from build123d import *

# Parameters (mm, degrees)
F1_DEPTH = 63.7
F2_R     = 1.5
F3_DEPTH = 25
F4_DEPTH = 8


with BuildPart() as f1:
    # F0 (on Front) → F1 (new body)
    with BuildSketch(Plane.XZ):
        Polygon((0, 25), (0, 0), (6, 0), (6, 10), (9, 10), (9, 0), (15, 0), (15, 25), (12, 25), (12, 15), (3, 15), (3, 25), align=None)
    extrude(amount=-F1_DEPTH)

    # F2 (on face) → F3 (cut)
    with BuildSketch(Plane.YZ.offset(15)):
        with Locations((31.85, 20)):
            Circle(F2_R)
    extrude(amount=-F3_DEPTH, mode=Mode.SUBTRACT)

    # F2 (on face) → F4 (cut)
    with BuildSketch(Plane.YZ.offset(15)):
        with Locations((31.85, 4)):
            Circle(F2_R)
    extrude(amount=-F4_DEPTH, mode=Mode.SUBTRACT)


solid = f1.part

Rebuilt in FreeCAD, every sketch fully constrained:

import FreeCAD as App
import Part
import Sketcher

V = App.Vector
Q = App.Units.Quantity


def add_polygon(sketch, points):
    """Adds a closed chain of lines whose ends are joined by coincident constraints."""
    first, n = sketch.GeometryCount, len(points)
    for a, b in zip(points, points[1:] + points[:1]):
        sketch.addGeometry(Part.LineSegment(App.Vector(*a, 0), App.Vector(*b, 0)), False)
    for i in range(n):
        sketch.addConstraint(Sketcher.Constraint("Coincident", first + i, 2, first + (i + 1) % n, 1))

doc = App.newDocument("Part")
params = doc.addObject("Spreadsheet::Sheet", "Params")
for row, (alias, value) in enumerate([
    ("sketch1_width", "6 mm"),
    ("sketch1_width2", "3 mm"),
    ("sketch1_height", "25 mm"),
    ("sketch1_height2", "10 mm"),
    ("pad1_length", "63.7 mm"),
    ("sketch2_diameter", "3 mm"),
    ("pocket1_length", "25 mm"),
    ("sketch3_diameter", "3 mm"),
    ("pocket2_length", "8 mm"),
], start=1):
    params.set(f"A{row}", alias)
    params.set(f"B{row}", "=" + value)
    params.setAlias(f"B{row}", alias)

body = doc.addObject("PartDesign::Body", "Body")

sketch1 = doc.addObject("Sketcher::SketchObject", "Sketch")
body.addObject(sketch1)
sketch1.AttachmentSupport = (doc.XZ_Plane, [""])
sketch1.MapMode = "FlatFace"
add_polygon(sketch1, [(0, 25), (0, 0), (6, 0), (6, 10), (9, 10), (9, 0), (15, 0), (15, 25), (12, 25), (12, 15), (3, 15), (3, 25)])
sketch1.addConstraint([
    Sketcher.Constraint("Vertical", 0),
    Sketcher.Constraint("Horizontal", 1),
    Sketcher.Constraint("Vertical", 2),
    Sketcher.Constraint("Horizontal", 3),
    Sketcher.Constraint("Vertical", 4),
    Sketcher.Constraint("Horizontal", 5),
    Sketcher.Constraint("Vertical", 6),
    Sketcher.Constraint("Horizontal", 7),
    Sketcher.Constraint("Vertical", 8),
    Sketcher.Constraint("Horizontal", 9),
    Sketcher.Constraint("Vertical", 10),
    Sketcher.Constraint("Horizontal", 11),
    Sketcher.Constraint("Coincident", 0, 2, -1, 1),
    Sketcher.Constraint("PointOnObject", 4, 2, -1),
    Sketcher.Constraint("Horizontal", 7, 2, 10, 2),
    Sketcher.Constraint("Equal", 1, 5),
    Sketcher.Constraint("Equal", 3, 7),
    Sketcher.Constraint("Equal", 7, 11),
    Sketcher.Constraint("Equal", 4, 8),
    Sketcher.Constraint("DistanceX", 1, 1, 1, 2, Q("6 mm")),
    Sketcher.Constraint("DistanceX", 3, 1, 3, 2, Q("3 mm")),
    Sketcher.Constraint("DistanceY", 0, 2, 0, 1, Q("25 mm")),
    Sketcher.Constraint("DistanceY", 2, 1, 2, 2, Q("10 mm")),
])
sketch1.setExpression("Constraints[31]", "Params.sketch1_width")
sketch1.setExpression("Constraints[32]", "Params.sketch1_width2")
sketch1.setExpression("Constraints[33]", "Params.sketch1_height")
sketch1.setExpression("Constraints[34]", "Params.sketch1_height2")
pad1 = doc.addObject("PartDesign::Pad", "Pad")
body.addObject(pad1)
pad1.Profile = sketch1
pad1.setExpression("Length", "Params.pad1_length")
pad1.Reversed = True

sketch2 = doc.addObject("Sketcher::SketchObject", "Sketch001")
body.addObject(sketch2)
sketch2.AttachmentSupport = (doc.YZ_Plane, [""])
sketch2.MapMode = "FlatFace"
sketch2.AttachmentOffset = App.Placement(V(0, 0, 15), App.Rotation())
sketch2.addGeometry(Part.Circle(V(31.9, 20, 0), V(0, 0, 1), 1.5), False)
sketch2.addConstraint([
    Sketcher.Constraint("Diameter", 0, Q("3 mm")),
    Sketcher.Constraint("DistanceY", -1, 1, 0, 3, Q("20 mm")),
    Sketcher.Constraint("DistanceX", -1, 1, 0, 3, Q("31.85 mm")),
])
sketch2.setExpression("Constraints[0]", "Params.sketch2_diameter")
pocket1 = doc.addObject("PartDesign::Pocket", "Pocket")
body.addObject(pocket1)
pocket1.Profile = sketch2
pocket1.setExpression("Length", "Params.pocket1_length")

sketch3 = doc.addObject("Sketcher::SketchObject", "Sketch002")
body.addObject(sketch3)
sketch3.AttachmentSupport = (doc.YZ_Plane, [""])
sketch3.MapMode = "FlatFace"
sketch3.AttachmentOffset = App.Placement(V(0, 0, 15), App.Rotation())
sketch3.addGeometry(Part.Circle(V(31.9, 4, 0), V(0, 0, 1), 1.5), False)
sketch3.addConstraint([
    Sketcher.Constraint("Diameter", 0, Q("3 mm")),
    Sketcher.Constraint("DistanceY", -1, 1, 0, 3, Q("4 mm")),
    Sketcher.Constraint("DistanceX", -1, 1, 0, 3, Q("31.85 mm")),
])
sketch3.setExpression("Constraints[0]", "Params.sketch3_diameter")
pocket2 = doc.addObject("PartDesign::Pocket", "Pocket001")
body.addObject(pocket2)
pocket2.Profile = sketch3
pocket2.setExpression("Length", "Params.pocket2_length")

doc.recompute()
